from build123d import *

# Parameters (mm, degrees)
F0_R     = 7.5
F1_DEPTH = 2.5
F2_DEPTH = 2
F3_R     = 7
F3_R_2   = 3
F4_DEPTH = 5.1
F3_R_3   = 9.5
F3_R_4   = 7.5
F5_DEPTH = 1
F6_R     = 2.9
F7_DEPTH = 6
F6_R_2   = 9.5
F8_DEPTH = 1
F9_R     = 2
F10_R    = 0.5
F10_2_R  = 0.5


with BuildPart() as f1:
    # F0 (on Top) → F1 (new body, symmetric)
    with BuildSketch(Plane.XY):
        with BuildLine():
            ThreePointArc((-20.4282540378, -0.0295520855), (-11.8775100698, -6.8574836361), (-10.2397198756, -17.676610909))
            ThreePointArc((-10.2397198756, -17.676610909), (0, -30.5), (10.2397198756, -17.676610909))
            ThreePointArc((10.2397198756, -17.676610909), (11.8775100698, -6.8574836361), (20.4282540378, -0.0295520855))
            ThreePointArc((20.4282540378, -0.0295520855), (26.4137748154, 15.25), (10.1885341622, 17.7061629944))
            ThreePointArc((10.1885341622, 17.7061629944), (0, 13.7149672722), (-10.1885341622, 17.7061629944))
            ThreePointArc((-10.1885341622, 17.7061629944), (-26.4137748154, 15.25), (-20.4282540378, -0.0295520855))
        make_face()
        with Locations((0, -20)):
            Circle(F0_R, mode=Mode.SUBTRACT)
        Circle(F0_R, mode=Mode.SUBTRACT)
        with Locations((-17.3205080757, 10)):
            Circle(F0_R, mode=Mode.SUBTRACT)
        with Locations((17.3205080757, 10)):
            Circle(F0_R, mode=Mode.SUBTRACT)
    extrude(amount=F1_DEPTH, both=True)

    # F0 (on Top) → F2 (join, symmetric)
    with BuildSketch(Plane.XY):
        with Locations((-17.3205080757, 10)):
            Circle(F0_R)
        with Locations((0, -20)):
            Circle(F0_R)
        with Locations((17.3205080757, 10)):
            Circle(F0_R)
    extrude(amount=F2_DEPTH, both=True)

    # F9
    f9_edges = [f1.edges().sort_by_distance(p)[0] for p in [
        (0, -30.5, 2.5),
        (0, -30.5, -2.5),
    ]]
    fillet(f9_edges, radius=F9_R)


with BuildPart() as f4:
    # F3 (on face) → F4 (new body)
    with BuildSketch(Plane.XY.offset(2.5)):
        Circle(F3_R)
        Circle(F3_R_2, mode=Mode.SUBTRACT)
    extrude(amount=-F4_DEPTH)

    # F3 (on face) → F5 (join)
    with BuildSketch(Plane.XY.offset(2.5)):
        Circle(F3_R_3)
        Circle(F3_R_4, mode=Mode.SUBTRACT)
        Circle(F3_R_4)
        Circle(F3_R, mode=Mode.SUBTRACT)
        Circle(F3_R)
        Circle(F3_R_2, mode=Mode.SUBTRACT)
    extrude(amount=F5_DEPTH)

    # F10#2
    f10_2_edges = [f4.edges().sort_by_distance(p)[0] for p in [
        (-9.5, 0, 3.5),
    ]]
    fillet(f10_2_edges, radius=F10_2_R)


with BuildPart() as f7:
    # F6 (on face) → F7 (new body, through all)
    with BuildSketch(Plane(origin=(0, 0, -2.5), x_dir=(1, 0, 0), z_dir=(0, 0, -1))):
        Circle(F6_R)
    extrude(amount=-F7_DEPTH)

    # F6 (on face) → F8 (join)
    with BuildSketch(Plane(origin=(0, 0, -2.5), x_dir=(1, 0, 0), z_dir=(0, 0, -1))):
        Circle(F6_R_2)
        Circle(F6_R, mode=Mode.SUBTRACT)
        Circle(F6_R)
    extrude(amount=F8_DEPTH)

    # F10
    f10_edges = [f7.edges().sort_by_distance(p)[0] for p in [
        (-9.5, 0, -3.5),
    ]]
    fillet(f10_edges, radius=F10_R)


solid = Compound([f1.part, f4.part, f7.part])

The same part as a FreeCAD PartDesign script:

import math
import FreeCAD as App
import Part
import Sketcher


def edges_at(feature, points):
    """Names of the edges that pass closest to the given points."""
    edges = feature.Shape.Edges
    near = lambda p: min(range(len(edges)), key=lambda i: edges[i].distToShape(Part.Vertex(*p))[0])
    return sorted({f"Edge{near(p) + 1}" for p in points})

doc = App.newDocument("Part")
body = doc.addObject("PartDesign::Body", "Body")

# Sketch on XY plane
sketch1 = body.newObject("Sketcher::SketchObject", "Sketch")
sketch1.AttachmentSupport = (doc.getObject("XY_Plane"), [""])
sketch1.MapMode = "FlatFace"
sketch1.addGeometry([
    Part.ArcOfCircle(Part.Circle(App.Vector(-24.867891, -14.357484, 0), App.Vector(0, 0, 1), 15), math.radians(-12.78394), math.radians(72.78394)),  # 0
    Part.ArcOfCircle(Part.Circle(App.Vector(0, -20, 0), App.Vector(0, 0, 1), 10.5), math.radians(167.21606), math.radians(372.78394)),  # 1
    Part.ArcOfCircle(Part.Circle(App.Vector(24.867891, -14.357484, 0), App.Vector(0, 0, 1), 15), math.radians(107.21606), math.radians(192.78394)),  # 2
    Part.ArcOfCircle(Part.Circle(App.Vector(17.320508, 10, 0), App.Vector(0, 0, 1), 10.5), math.radians(-72.78394), math.radians(132.78394)),  # 3
    Part.ArcOfCircle(Part.Circle(App.Vector(0, 28.714967, 0), App.Vector(0, 0, 1), 15), math.radians(-132.78394), math.radians(-47.21606)),  # 4
    Part.ArcOfCircle(Part.Circle(App.Vector(-17.320508, 10, 0), App.Vector(0, 0, 1), 10.5), math.radians(47.21606), math.radians(252.78394)),  # 5
    Part.Circle(App.Vector(0, -20, 0), App.Vector(0, 0, 1), 7.5),  # 6
    Part.Circle(App.Vector(-17.320508, 10, 0), App.Vector(0, 0, 1), 7.5),  # 7
    Part.Circle(App.Vector(0, 0, 0), App.Vector(0, 0, 1), 7.5),  # 8
    Part.Circle(App.Vector(17.320508, 10, 0), App.Vector(0, 0, 1), 7.5),  # 9
], False)
sketch1.addConstraint([
    Sketcher.Constraint("Tangent", 0, 1, 1, 1),
    Sketcher.Constraint("Tangent", 1, 2, 2, 2),
    Sketcher.Constraint("Tangent", 2, 1, 3, 1),
    Sketcher.Constraint("Tangent", 3, 2, 4, 2),
    Sketcher.Constraint("Tangent", 4, 1, 5, 1),
    Sketcher.Constraint("Tangent", 5, 2, 0, 2),
    Sketcher.Constraint("Coincident", 8, 3, -1, 1),
    Sketcher.Constraint("Coincident", 6, 3, 1, 3),
    Sketcher.Constraint("Coincident", 7, 3, 5, 3),
    Sketcher.Constraint("Coincident", 9, 3, 3, 3),
    Sketcher.Constraint("Equal", 0, 2),
    Sketcher.Constraint("Equal", 1, 3),
    Sketcher.Constraint("Equal", 2, 4),
    Sketcher.Constraint("Equal", 3, 5),
    Sketcher.Constraint("Equal", 6, 7),
    Sketcher.Constraint("Equal", 7, 8),
    Sketcher.Constraint("Equal", 8, 9),
    Sketcher.Constraint("Symmetric", 0, 3, 2, 3, -2),
    Sketcher.Constraint("PointOnObject", 4, 3, -2),
    Sketcher.Constraint("Diameter", 6, 15.0),
    Sketcher.Constraint("Radius", 0, 15.0),
    Sketcher.Constraint("Radius", 1, 10.5),
    Sketcher.Constraint("DistanceY", 1, 3, -1, 1, 20.0),
    Sketcher.Constraint("DistanceY", -1, 1, 3, 3, 10.0),
    Sketcher.Constraint("DistanceX", 0, 3, 3, 3, 42.188399),
])
pad1 = body.newObject("PartDesign::Pad", "Pad")
pad1.Profile = sketch1
pad1.Length = 5
pad1.Midplane = True

# Sketch on XY plane
sketch2 = body.newObject("Sketcher::SketchObject", "Sketch001")
sketch2.AttachmentSupport = (doc.getObject("XY_Plane"), [""])
sketch2.MapMode = "FlatFace"
sketch2.addGeometry([
    Part.Circle(App.Vector(-17.320508, 10, 0), App.Vector(0, 0, 1), 7.5),
    Part.Circle(App.Vector(0, -20, 0), App.Vector(0, 0, 1), 7.5),
    Part.Circle(App.Vector(17.320508, 10, 0), App.Vector(0, 0, 1), 7.5),
], False)
sketch2.addConstraint([
    Sketcher.Constraint("Equal", 0, 1),
    Sketcher.Constraint("Equal", 1, 2),
    Sketcher.Constraint("Symmetric", 0, 3, 2, 3, -2),
    Sketcher.Constraint("PointOnObject", 1, 3, -2),
    Sketcher.Constraint("Diameter", 0, 15.0),
    Sketcher.Constraint("DistanceY", -1, 1, 0, 3, 10.0),
    Sketcher.Constraint("DistanceY", 1, 3, -1, 1, 20.0),
    Sketcher.Constraint("DistanceX", 0, 3, -1, 1, 17.320508),
])
pad2 = body.newObject("PartDesign::Pad", "Pad001")
pad2.Profile = sketch2
pad2.Length = 4
pad2.Midplane = True
doc.recompute()

fillet = body.newObject("PartDesign::Fillet", "Fillet")
fillet.Base = (pad2, edges_at(pad2, [(0, -30.5, 2.5), (0, -30.5, -2.5)]))
fillet.Radius = 2
body2 = doc.addObject("PartDesign::Body", "Body001")

# Sketch on XY plane
sketch3 = body2.newObject("Sketcher::SketchObject", "Sketch002")
sketch3.AttachmentSupport = (doc.getObject("XY_Plane001"), [""])
sketch3.MapMode = "FlatFace"
sketch3.AttachmentOffset = App.Placement(App.Vector(0, 0, 2.5), App.Rotation())
sketch3.addGeometry([
    Part.Circle(App.Vector(0, 0, 0), App.Vector(0, 0, 1), 7),
    Part.Circle(App.Vector(0, 0, 0), App.Vector(0, 0, 1), 3),
], False)
sketch3.addConstraint([
    Sketcher.Constraint("Coincident", 0, 3, -1, 1),
    Sketcher.Constraint("Coincident", 1, 3, -1, 1),
    Sketcher.Constraint("Diameter", 0, 14.0),
    Sketcher.Constraint("Diameter", 1, 6.0),
])
pad3 = body2.newObject("PartDesign::Pad", "Pad002")
pad3.Profile = sketch3
pad3.Length = 5.1
pad3.Reversed = True

# Sketch on XY plane
sketch4 = body2.newObject("Sketcher::SketchObject", "Sketch003")
sketch4.AttachmentSupport = (doc.getObject("XY_Plane001"), [""])
sketch4.MapMode = "FlatFace"
sketch4.AttachmentOffset = App.Placement(App.Vector(0, 0, 2.5), App.Rotation())
sketch4.addGeometry([
    Part.Circle(App.Vector(0, 0, 0), App.Vector(0, 0, 1), 9.5),
    Part.Circle(App.Vector(0, 0, 0), App.Vector(0, 0, 1), 3),
], False)
sketch4.addConstraint([
    Sketcher.Constraint("Coincident", 0, 3, -1, 1),
    Sketcher.Constraint("Coincident", 1, 3, -1, 1),
    Sketcher.Constraint("Diameter", 0, 19.0),
    Sketcher.Constraint("Diameter", 1, 6.0),
])
pad4 = body2.newObject("PartDesign::Pad", "Pad003")
pad4.Profile = sketch4
pad4.Length = 1
doc.recompute()

fillet2 = body2.newObject("PartDesign::Fillet", "Fillet001")
fillet2.Base = (pad4, edges_at(pad4, [(-9.5, 0, 3.5)]))
fillet2.Radius = 0.5
body3 = doc.addObject("PartDesign::Body", "Body002")

# Sketch on XY plane
sketch5 = body3.newObject("Sketcher::SketchObject", "Sketch004")
sketch5.AttachmentSupport = (doc.getObject("XY_Plane002"), [""])
sketch5.MapMode = "FlatFace"
sketch5.AttachmentOffset = App.Placement(App.Vector(0, 0, -2.5), App.Rotation())
sketch5.addGeometry(Part.Circle(App.Vector(0, 0, 0), App.Vector(0, 0, 1), 2.9), False)
sketch5.addConstraint([
    Sketcher.Constraint("Coincident", 0, 3, -1, 1),
    Sketcher.Constraint("Diameter", 0, 5.8),
])
pad5 = body3.newObject("PartDesign::Pad", "Pad004")
pad5.Profile = sketch5
pad5.Length = 6

# Sketch on XY plane
sketch6 = body3.newObject("Sketcher::SketchObject", "Sketch005")
sketch6.AttachmentSupport = (doc.getObject("XY_Plane002"), [""])
sketch6.MapMode = "FlatFace"
sketch6.AttachmentOffset = App.Placement(App.Vector(0, 0, -2.5), App.Rotation())
sketch6.addGeometry(Part.Circle(App.Vector(0, 0, 0), App.Vector(0, 0, 1), 9.5), False)
sketch6.addConstraint([
    Sketcher.Constraint("Coincident", 0, 3, -1, 1),
    Sketcher.Constraint("Diameter", 0, 19.0),
])
pad6 = body3.newObject("PartDesign::Pad", "Pad005")
pad6.Profile = sketch6
pad6.Length = 1
pad6.Reversed = True
doc.recompute()

fillet3 = body3.newObject("PartDesign::Fillet", "Fillet002")
fillet3.Base = (pad6, edges_at(pad6, [(-9.5, 0, -3.5)]))
fillet3.Radius = 0.5

doc.recompute()
